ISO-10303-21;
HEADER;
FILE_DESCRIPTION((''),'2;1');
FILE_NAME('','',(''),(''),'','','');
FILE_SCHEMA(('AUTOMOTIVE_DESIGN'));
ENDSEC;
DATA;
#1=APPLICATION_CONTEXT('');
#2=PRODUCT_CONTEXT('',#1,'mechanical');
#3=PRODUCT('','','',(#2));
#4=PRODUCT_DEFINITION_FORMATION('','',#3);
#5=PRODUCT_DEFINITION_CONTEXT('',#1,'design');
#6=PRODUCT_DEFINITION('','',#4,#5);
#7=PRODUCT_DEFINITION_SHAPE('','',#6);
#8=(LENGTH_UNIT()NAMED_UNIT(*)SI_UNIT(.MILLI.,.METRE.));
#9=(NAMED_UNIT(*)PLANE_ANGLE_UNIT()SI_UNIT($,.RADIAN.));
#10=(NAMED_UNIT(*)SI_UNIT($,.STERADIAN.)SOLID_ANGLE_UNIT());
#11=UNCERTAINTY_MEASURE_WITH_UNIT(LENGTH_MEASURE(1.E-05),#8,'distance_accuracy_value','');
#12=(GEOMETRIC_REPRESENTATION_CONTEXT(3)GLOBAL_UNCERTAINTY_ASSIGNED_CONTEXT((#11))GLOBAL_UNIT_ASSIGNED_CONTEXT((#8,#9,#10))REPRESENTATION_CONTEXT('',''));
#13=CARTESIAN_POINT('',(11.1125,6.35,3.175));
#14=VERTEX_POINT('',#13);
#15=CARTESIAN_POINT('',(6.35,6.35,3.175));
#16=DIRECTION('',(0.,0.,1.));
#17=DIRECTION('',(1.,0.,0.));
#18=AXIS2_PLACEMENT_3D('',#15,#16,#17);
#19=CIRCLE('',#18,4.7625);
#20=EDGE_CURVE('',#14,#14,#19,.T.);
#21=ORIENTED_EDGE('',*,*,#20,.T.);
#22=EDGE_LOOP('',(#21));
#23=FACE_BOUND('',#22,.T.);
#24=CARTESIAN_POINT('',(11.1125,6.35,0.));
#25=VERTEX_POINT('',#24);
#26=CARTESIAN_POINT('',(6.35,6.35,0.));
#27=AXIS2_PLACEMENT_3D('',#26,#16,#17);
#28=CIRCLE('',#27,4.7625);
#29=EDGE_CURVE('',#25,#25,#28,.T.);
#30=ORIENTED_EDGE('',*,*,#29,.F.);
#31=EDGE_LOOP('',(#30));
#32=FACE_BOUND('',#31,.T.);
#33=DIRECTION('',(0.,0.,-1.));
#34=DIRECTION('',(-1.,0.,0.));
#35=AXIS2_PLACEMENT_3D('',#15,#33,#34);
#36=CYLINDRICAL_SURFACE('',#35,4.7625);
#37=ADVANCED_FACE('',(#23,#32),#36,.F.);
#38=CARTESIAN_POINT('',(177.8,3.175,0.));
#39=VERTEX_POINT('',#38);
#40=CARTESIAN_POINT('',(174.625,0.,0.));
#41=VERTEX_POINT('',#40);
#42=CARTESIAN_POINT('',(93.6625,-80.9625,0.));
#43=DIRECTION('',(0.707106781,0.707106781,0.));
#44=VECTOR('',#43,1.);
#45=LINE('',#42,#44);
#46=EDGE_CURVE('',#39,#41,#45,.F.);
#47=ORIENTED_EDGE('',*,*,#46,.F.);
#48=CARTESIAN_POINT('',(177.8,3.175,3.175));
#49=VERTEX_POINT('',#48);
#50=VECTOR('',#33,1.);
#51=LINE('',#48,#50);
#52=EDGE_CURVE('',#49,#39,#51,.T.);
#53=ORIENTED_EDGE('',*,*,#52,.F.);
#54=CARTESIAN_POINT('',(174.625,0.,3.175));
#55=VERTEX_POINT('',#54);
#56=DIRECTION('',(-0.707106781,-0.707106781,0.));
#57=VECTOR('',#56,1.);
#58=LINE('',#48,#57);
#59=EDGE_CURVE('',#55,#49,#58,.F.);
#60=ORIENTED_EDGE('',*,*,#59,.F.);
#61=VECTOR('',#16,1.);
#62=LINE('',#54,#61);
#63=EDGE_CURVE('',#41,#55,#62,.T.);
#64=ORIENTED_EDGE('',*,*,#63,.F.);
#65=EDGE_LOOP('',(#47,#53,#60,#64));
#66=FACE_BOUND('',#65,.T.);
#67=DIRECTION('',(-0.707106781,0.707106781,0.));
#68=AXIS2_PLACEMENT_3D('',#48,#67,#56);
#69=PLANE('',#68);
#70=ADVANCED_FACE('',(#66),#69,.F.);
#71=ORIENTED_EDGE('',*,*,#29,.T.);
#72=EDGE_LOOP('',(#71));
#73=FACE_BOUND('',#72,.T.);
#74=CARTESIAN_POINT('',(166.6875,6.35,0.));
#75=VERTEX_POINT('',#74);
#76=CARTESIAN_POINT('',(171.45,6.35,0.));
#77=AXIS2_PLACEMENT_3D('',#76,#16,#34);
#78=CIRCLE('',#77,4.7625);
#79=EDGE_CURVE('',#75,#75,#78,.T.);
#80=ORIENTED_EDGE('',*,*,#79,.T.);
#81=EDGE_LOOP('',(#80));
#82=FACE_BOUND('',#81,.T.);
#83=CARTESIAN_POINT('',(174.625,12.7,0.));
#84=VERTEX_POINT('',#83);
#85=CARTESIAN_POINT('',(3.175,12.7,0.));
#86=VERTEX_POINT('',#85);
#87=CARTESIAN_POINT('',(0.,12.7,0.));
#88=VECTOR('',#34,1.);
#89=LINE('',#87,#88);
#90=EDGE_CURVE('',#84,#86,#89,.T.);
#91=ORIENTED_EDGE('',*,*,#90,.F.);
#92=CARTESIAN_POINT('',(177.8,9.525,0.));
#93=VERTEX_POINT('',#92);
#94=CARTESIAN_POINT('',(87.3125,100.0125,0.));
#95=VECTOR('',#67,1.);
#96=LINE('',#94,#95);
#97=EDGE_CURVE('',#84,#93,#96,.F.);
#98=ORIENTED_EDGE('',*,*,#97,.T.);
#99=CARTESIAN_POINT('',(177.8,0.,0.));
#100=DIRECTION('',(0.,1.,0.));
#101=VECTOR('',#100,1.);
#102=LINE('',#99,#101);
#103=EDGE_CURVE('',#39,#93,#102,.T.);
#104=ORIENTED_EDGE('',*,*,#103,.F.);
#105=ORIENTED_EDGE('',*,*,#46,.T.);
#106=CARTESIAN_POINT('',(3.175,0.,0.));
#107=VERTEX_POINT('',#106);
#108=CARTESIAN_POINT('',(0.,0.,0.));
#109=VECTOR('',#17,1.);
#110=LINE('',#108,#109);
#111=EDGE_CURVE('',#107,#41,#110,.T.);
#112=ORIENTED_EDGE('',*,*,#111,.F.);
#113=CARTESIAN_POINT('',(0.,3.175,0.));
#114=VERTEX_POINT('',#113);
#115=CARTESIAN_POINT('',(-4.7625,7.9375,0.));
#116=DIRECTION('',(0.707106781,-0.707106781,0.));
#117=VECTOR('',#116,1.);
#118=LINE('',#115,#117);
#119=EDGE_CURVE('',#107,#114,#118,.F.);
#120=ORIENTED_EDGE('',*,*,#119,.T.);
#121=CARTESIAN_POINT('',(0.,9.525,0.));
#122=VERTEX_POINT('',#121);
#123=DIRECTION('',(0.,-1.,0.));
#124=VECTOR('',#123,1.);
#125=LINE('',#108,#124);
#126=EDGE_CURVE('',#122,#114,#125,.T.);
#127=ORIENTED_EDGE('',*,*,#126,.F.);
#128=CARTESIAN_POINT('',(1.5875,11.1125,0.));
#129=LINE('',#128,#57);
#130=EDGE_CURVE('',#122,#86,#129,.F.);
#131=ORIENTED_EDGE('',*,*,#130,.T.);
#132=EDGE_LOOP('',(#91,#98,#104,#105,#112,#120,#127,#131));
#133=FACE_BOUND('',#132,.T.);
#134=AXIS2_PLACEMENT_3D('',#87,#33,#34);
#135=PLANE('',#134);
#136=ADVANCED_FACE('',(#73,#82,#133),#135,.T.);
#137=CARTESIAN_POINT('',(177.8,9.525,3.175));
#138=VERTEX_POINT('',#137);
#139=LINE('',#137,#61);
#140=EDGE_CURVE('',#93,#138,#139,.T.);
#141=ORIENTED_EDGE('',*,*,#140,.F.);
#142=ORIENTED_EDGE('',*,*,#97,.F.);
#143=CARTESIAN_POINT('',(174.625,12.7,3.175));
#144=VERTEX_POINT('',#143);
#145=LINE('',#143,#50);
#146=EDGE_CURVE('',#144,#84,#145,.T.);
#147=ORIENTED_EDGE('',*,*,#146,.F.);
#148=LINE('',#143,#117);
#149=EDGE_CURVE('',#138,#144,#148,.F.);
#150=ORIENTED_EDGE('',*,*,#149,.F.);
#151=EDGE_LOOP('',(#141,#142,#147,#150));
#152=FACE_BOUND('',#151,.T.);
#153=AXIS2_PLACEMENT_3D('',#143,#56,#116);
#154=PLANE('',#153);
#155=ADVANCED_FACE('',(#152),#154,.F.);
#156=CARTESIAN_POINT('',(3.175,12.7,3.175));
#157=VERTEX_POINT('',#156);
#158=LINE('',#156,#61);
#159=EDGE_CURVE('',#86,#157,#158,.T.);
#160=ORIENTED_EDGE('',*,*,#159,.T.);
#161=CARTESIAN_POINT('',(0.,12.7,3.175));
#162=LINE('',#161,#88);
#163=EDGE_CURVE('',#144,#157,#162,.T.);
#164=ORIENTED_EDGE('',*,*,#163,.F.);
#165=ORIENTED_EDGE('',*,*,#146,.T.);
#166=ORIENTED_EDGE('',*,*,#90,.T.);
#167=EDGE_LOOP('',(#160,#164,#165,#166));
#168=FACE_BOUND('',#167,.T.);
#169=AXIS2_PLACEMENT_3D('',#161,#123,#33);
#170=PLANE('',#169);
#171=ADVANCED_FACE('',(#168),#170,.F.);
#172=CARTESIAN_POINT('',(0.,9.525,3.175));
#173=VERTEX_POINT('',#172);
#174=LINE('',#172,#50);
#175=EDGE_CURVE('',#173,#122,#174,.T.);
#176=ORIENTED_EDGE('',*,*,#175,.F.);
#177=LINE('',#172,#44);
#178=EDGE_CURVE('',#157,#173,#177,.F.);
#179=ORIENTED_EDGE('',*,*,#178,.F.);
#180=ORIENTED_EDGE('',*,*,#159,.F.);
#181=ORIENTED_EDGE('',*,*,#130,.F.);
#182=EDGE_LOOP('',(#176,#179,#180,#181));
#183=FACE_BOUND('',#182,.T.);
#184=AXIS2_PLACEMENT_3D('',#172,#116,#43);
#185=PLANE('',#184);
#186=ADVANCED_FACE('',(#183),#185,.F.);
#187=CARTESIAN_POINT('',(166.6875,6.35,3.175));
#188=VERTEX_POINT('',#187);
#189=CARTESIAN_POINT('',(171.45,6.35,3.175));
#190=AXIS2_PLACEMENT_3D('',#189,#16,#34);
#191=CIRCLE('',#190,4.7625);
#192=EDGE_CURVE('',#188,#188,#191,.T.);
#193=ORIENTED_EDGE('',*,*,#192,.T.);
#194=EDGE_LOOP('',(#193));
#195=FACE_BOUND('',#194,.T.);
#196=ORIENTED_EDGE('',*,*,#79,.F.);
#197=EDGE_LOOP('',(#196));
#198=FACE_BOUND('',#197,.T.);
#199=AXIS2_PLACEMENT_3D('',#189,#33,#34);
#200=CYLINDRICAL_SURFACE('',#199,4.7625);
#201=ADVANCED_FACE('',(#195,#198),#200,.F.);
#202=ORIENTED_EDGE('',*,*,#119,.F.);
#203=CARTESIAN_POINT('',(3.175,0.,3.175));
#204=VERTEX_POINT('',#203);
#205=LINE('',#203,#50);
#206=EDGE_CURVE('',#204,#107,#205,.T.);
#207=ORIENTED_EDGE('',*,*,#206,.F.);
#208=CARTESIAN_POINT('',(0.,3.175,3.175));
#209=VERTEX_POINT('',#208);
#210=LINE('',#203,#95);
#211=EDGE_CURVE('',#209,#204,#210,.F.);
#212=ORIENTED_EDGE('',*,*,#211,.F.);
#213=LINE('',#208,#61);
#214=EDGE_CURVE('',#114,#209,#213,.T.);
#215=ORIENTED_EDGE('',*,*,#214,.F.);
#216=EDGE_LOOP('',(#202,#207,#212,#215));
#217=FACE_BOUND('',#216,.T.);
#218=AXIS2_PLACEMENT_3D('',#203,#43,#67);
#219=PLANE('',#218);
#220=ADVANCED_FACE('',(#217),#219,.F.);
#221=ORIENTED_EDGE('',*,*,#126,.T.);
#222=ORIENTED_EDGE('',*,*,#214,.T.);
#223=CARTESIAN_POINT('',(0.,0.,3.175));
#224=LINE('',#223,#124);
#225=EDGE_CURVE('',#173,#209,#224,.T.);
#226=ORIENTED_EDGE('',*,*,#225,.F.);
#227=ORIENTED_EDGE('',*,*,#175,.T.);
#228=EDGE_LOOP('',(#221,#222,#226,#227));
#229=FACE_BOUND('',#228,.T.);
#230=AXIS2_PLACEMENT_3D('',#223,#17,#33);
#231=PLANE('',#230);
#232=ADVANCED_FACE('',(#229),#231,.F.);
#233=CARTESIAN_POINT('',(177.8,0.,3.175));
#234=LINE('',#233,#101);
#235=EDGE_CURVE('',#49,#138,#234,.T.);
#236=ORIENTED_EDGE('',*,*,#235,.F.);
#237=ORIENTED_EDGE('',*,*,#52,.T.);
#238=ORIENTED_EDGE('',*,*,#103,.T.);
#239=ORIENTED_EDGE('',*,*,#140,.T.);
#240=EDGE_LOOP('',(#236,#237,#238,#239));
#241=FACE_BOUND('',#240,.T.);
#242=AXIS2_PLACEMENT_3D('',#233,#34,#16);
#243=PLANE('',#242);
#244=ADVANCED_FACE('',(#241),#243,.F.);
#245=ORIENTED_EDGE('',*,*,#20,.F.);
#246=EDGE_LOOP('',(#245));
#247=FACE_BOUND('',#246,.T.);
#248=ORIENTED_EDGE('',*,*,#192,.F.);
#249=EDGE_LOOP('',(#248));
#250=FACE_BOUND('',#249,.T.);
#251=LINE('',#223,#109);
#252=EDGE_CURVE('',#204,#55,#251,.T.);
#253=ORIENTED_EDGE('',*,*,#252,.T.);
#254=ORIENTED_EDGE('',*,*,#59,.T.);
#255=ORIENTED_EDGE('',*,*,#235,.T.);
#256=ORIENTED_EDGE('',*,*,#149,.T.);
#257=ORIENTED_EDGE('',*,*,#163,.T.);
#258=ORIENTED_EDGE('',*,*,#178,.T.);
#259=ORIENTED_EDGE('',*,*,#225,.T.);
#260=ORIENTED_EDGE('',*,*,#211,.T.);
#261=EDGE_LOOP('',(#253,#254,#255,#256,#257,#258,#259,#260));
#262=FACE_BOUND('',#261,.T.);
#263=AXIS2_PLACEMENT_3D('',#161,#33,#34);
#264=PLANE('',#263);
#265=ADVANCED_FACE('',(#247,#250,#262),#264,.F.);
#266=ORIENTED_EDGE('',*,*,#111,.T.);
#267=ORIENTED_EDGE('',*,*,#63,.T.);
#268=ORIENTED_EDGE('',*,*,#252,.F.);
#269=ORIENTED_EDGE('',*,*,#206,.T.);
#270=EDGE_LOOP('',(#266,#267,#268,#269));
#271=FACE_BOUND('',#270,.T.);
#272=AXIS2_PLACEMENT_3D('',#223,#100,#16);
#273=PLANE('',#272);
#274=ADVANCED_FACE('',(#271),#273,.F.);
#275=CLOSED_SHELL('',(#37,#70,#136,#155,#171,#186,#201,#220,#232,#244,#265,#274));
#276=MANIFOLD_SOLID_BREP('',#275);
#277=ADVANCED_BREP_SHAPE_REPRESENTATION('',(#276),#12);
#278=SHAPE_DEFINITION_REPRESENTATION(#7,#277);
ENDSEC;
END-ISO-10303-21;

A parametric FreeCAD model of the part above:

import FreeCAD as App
import Part
import Sketcher
Q = App.Units.Quantity


def edges_at(feature, points):
    """Names of the edges that pass closest to the given points."""
    edges = feature.Shape.Edges
    near = lambda p: min(range(len(edges)), key=lambda i: edges[i].distToShape(Part.Vertex(*p))[0])
    return sorted({f"Edge{near(p) + 1}" for p in points})


def add_polygon(sketch, points):
    """Adds a closed chain of lines whose ends are joined by coincident constraints."""
    first, n = sketch.GeometryCount, len(points)
    for a, b in zip(points, points[1:] + points[:1]):
        sketch.addGeometry(Part.LineSegment(App.Vector(*a, 0), App.Vector(*b, 0)), False)
    for i in range(n):
        sketch.addConstraint(Sketcher.Constraint("Coincident", first + i, 2, first + (i + 1) % n, 1))

doc = App.newDocument("Part")
body = doc.addObject("PartDesign::Body", "Body")

# Sketch on XY plane
sketch1 = doc.addObject("Sketcher::SketchObject", "Sketch")
body.addObject(sketch1)
sketch1.AttachmentSupport = (doc.XY_Plane, [""])
sketch1.MapMode = "FlatFace"
add_polygon(sketch1, [(0, 12.7), (0, 0), (177.8, 0), (177.8, 12.7)])  # lines 0-3
sketch1.addGeometry(Part.Circle(App.Vector(6.3, 6.3, 0), App.Vector(0, 0, 1), 4.8), False)  # 4
sketch1.addGeometry(Part.Circle(App.Vector(171.4, 6.3, 0), App.Vector(0, 0, 1), 4.8), False)  # 5
sketch1.addConstraint([
    Sketcher.Constraint("Vertical", 0),
    Sketcher.Constraint("Horizontal", 1),
    Sketcher.Constraint("Vertical", 2),
    Sketcher.Constraint("Horizontal", 3),
    Sketcher.Constraint("Coincident", 0, 2, -1, 1),
    Sketcher.Constraint("Equal", 4, 5),
    Sketcher.Constraint("Horizontal", 4, 3, 5, 3),
    Sketcher.Constraint("DistanceX", 1, 1, 1, 2, Q("7 in")),
    Sketcher.Constraint("Diameter", 4, Q("0.375 in")),
    Sketcher.Constraint("DistanceY", 0, 2, 0, 1, Q("0.5 in")),
    Sketcher.Constraint("DistanceX", 4, 3, 5, 3, Q("6.5 in")),
    Sketcher.Constraint("DistanceX", -1, 1, 4, 3, Q("0.25 in")),
    Sketcher.Constraint("DistanceY", -1, 1, 4, 3, Q("0.25 in")),
])
pad1 = doc.addObject("PartDesign::Pad", "Pad")
body.addObject(pad1)
pad1.Profile = sketch1
pad1.Length = Q("0.125 in")
doc.recompute()

chamfer = doc.addObject("PartDesign::Chamfer", "Chamfer")
body.addObject(chamfer)
chamfer.Base = (pad1, edges_at(pad1, [
    (0, 12.7, 1.587),
    (177.8, 12.7, 1.587),
    (177.8, 0, 1.587),
    (0, 0, 1.587),
]))
chamfer.Size = Q("0.125 in")

doc.recompute()
